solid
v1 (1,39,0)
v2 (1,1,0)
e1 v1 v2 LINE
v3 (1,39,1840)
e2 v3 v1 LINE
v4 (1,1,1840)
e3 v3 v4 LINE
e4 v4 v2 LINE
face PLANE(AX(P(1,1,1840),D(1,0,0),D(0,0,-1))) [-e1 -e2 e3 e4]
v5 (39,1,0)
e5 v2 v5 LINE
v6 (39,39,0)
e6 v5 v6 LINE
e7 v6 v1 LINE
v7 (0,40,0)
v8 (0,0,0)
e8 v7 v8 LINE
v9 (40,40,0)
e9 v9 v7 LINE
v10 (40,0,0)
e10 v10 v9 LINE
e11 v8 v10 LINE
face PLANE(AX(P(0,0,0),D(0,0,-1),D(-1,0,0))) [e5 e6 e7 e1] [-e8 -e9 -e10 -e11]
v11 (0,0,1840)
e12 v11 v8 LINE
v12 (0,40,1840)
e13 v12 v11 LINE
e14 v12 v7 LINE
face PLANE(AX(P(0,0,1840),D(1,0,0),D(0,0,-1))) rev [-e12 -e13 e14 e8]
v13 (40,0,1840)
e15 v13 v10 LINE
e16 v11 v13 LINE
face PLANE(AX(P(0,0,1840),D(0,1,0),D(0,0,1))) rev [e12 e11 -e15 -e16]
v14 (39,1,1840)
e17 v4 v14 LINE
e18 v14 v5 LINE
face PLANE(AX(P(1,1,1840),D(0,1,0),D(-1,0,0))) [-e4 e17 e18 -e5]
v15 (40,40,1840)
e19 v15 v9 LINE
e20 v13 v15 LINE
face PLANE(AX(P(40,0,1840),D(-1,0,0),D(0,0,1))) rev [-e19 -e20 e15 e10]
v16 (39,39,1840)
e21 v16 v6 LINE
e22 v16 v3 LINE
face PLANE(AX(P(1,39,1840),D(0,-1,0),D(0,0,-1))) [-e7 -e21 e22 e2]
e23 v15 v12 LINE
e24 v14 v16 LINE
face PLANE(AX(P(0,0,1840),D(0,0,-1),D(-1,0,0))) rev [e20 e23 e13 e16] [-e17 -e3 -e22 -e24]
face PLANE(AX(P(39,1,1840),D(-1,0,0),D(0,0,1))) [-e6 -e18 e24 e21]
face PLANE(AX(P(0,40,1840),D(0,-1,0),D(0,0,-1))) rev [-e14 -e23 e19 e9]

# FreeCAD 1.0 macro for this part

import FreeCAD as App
import Part
import Sketcher
Q = App.Units.Quantity

doc = App.newDocument("Part")
params = doc.addObject("Spreadsheet::Sheet", "Params")
for row, (alias, value) in enumerate([
    ("sketch1_width", "40 mm"),
    ("sketch1_width2", "38 mm"),
    ("pad1_length", "1840 mm"),
], start=1):
    params.set(f"A{row}", alias)
    params.set(f"B{row}", "=" + value)
    params.setAlias(f"B{row}", alias)

body = doc.addObject("PartDesign::Body", "Body")

# Sketch on XY plane
sketch1 = body.newObject("Sketcher::SketchObject", "Sketch")
sketch1.AttachmentSupport = (doc.getObject("XY_Plane"), [""])
sketch1.MapMode = "FlatFace"
sketch1.addGeometry([
    Part.LineSegment(App.Vector(0, 40, 0), App.Vector(0, 0, 0)),  # 0
    Part.LineSegment(App.Vector(0, 0, 0), App.Vector(40, 0, 0)),  # 1
    Part.LineSegment(App.Vector(40, 0, 0), App.Vector(40, 40, 0)),  # 2
    Part.LineSegment(App.Vector(40, 40, 0), App.Vector(0, 40, 0)),  # 3
    Part.LineSegment(App.Vector(39, 1, 0), App.Vector(1, 1, 0)),  # 4
    Part.LineSegment(App.Vector(1, 1, 0), App.Vector(1, 39, 0)),  # 5
    Part.LineSegment(App.Vector(1, 39, 0), App.Vector(39, 39, 0)),  # 6
    Part.LineSegment(App.Vector(39, 39, 0), App.Vector(39, 1, 0)),  # 7
], False)
sketch1.addConstraint([
    Sketcher.Constraint("Coincident", 0, 2, 1, 1),
    Sketcher.Constraint("Coincident", 1, 2, 2, 1),
    Sketcher.Constraint("Coincident", 2, 2, 3, 1),
    Sketcher.Constraint("Coincident", 3, 2, 0, 1),
    Sketcher.Constraint("Coincident", 4, 2, 5, 1),
    Sketcher.Constraint("Coincident", 5, 2, 6, 1),
    Sketcher.Constraint("Coincident", 6, 2, 7, 1),
    Sketcher.Constraint("Coincident", 7, 2, 4, 1),
    Sketcher.Constraint("Vertical", 0),
    Sketcher.Constraint("Horizontal", 1),
    Sketcher.Constraint("Vertical", 2),
    Sketcher.Constraint("Horizontal", 3),
    Sketcher.Constraint("Horizontal", 4),
    Sketcher.Constraint("Vertical", 5),
    Sketcher.Constraint("Horizontal", 6),
    Sketcher.Constraint("Vertical", 7),
    Sketcher.Constraint("Coincident", 0, 2, -1, 1),
    Sketcher.Constraint("Equal", 3, 0),
    Sketcher.Constraint("Equal", 6, 5),
    Sketcher.Constraint("DistanceX", 1, 1, 1, 2, Q("40 mm")),
    Sketcher.Constraint("DistanceX", 4, 2, 4, 1, Q("38 mm")),
    Sketcher.Constraint("DistanceX", -1, 1, 4, 2, Q("1 mm")),
    Sketcher.Constraint("DistanceY", -1, 1, 4, 2, Q("1 mm")),
])
sketch1.setExpression("Constraints[19]", "Params.sketch1_width")
sketch1.setExpression("Constraints[20]", "Params.sketch1_width2")
pad1 = body.newObject("PartDesign::Pad", "Pad")
pad1.Profile = sketch1
pad1.setExpression("Length", "Params.pad1_length")

doc.recompute()
